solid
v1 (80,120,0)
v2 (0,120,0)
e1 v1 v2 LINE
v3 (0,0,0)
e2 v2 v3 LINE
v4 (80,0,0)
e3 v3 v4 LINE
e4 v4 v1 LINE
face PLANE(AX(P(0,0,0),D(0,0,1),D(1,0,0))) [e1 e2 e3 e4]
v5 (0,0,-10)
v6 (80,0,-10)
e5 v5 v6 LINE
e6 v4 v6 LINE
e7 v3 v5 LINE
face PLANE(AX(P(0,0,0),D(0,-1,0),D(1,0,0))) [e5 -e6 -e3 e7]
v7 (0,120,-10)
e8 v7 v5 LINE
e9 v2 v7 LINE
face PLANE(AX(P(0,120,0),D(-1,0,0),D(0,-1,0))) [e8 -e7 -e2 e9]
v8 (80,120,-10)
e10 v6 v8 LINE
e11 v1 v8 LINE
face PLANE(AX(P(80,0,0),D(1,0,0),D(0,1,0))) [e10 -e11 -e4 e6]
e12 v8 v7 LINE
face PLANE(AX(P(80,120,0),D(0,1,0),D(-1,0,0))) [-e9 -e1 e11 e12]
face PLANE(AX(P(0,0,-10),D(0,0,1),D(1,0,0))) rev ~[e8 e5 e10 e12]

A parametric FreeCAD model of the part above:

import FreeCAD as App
import Part
import Sketcher
from FreeCAD import Vector


def add_polygon(sketch, points):
    """Adds a closed chain of lines whose ends are joined by coincident constraints."""
    first, n = sketch.GeometryCount, len(points)
    for a, b in zip(points, points[1:] + points[:1]):
        sketch.addGeometry(Part.LineSegment(App.Vector(*a, 0), App.Vector(*b, 0)), False)
    for i in range(n):
        sketch.addConstraint(Sketcher.Constraint("Coincident", first + i, 2, first + (i + 1) % n, 1))

doc = App.newDocument("Part")
params = doc.addObject("Spreadsheet::Sheet", "Params")
for row, (alias, value) in enumerate([
    ("sketch1_width", "80 mm"),
    ("sketch1_height", "120 mm"),
    ("pad1_length", "10 mm"),
], start=1):
    params.set(f"A{row}", alias)
    params.set(f"B{row}", "=" + value)
    params.setAlias(f"B{row}", alias)

body = doc.addObject("PartDesign::Body", "Body")

# Sketch on XY plane
sketch1 = body.newObject("Sketcher::SketchObject", "Sketch")
sketch1.AttachmentSupport = (doc.getObject("XY_Plane"), [""])
sketch1.MapMode = "FlatFace"
add_polygon(sketch1, [(0, 120), (0, 0), (80, 0), (80, 120)])  # lines 0-3
sketch1.addConstraint([
    Sketcher.Constraint("Vertical", 0),
    Sketcher.Constraint("Horizontal", 1),
    Sketcher.Constraint("Vertical", 2),
    Sketcher.Constraint("Horizontal", 3),
    Sketcher.Constraint("Coincident", 0, 2, -1, 1),
    Sketcher.Constraint("DistanceX", 1, 1, 1, 2, 80.0),
    Sketcher.Constraint("DistanceY", 0, 2, 0, 1, 120.0),
])
sketch1.setExpression("Constraints[9]", "Params.sketch1_width")
sketch1.setExpression("Constraints[10]", "Params.sketch1_height")
pad1 = body.newObject("PartDesign::Pad", "Pad")
pad1.Profile = sketch1
pad1.setExpression("Length", "Params.pad1_length")
pad1.Reversed = True

doc.recompute()
